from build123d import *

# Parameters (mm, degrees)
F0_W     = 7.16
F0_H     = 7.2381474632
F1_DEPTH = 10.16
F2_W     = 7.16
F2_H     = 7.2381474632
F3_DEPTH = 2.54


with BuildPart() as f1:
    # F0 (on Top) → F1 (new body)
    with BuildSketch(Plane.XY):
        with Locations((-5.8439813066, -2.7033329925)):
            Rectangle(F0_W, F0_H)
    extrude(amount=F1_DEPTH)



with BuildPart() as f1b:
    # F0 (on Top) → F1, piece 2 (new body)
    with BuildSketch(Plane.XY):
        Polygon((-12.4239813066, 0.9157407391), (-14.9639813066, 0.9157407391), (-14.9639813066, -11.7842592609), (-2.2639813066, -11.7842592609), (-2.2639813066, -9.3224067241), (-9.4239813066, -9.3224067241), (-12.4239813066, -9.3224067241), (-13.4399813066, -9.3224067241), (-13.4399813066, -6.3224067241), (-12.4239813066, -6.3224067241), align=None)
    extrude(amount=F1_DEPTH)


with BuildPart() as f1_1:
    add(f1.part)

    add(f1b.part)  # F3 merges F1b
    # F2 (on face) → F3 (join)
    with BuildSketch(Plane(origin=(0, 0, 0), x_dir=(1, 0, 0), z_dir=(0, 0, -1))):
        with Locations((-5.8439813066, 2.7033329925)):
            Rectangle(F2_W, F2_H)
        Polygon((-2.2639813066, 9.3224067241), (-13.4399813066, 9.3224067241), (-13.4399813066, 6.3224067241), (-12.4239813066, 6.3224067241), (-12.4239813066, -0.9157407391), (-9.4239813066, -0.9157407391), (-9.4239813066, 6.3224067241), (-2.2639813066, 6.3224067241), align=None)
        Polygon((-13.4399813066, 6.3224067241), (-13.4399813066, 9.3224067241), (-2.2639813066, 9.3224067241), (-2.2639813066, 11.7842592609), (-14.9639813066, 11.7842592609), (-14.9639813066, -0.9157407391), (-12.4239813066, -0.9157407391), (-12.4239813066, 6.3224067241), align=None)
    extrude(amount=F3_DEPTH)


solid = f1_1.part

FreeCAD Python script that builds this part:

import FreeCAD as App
import Part
import Sketcher
Q = App.Units.Quantity

doc = App.newDocument("Part")
body = doc.addObject("PartDesign::Body", "Body")

sketch1 = body.newObject("Sketcher::SketchObject", "Sketch")
sketch1.AttachmentSupport = (doc.getObject("XY_Plane"), [""])
sketch1.MapMode = "FlatFace"
sketch1.addGeometry(Part.LineSegment(App.Vector(-9, 1, 0), App.Vector(-9, -6, 0)), False)
sketch1.addGeometry(Part.LineSegment(App.Vector(-9, -6, 0), App.Vector(-2, -6, 0)), False)
sketch1.addGeometry(Part.LineSegment(App.Vector(-2, -6, 0), App.Vector(-2, 1, 0)), False)
sketch1.addGeometry(Part.LineSegment(App.Vector(-2, 1, 0), App.Vector(-9, 1, 0)), False)
sketch1.addConstraint(Sketcher.Constraint("Coincident", 0, 2, 1, 1))
sketch1.addConstraint(Sketcher.Constraint("Coincident", 1, 2, 2, 1))
sketch1.addConstraint(Sketcher.Constraint("Coincident", 2, 2, 3, 1))
sketch1.addConstraint(Sketcher.Constraint("Coincident", 3, 2, 0, 1))
sketch1.addConstraint(Sketcher.Constraint("Vertical", 0))
sketch1.addConstraint(Sketcher.Constraint("Horizontal", 1))
sketch1.addConstraint(Sketcher.Constraint("Vertical", 2))
sketch1.addConstraint(Sketcher.Constraint("Horizontal", 3))
sketch1.addConstraint(Sketcher.Constraint("DistanceX", 1, 1, 1, 2, Q("7.16 mm")))
sketch1.addConstraint(Sketcher.Constraint("DistanceY", 0, 2, 0, 1, Q("7.238147 mm")))
sketch1.addConstraint(Sketcher.Constraint("DistanceX", 0, 2, -1, 1, Q("9.423981 mm")))
sketch1.addConstraint(Sketcher.Constraint("DistanceY", -1, 1, 2, 2, Q("0.915741 mm")))
pad1 = body.newObject("PartDesign::Pad", "Pad")
pad1.Profile = sketch1
pad1.Length = Q("0.4 in")
body2 = doc.addObject("PartDesign::Body", "Body001")

sketch2 = body2.newObject("Sketcher::SketchObject", "Sketch001")
sketch2.AttachmentSupport = (doc.getObject("XY_Plane001"), [""])
sketch2.MapMode = "FlatFace"
sketch2.addGeometry(Part.LineSegment(App.Vector(-12.4, 0.9, 0), App.Vector(-15, 0.9, 0)), False)
sketch2.addGeometry(Part.LineSegment(App.Vector(-15, 0.9, 0), App.Vector(-15, -11.8, 0)), False)
sketch2.addGeometry(Part.LineSegment(App.Vector(-15, -11.8, 0), App.Vector(-2.3, -11.8, 0)), False)
sketch2.addGeometry(Part.LineSegment(App.Vector(-2.3, -11.8, 0), App.Vector(-2.3, -9.3, 0)), False)
sketch2.addGeometry(Part.LineSegment(App.Vector(-2.3, -9.3, 0), App.Vector(-13.4, -9.3, 0)), False)
sketch2.addGeometry(Part.LineSegment(App.Vector(-13.4, -9.3, 0), App.Vector(-13.4, -6.3, 0)), False)
sketch2.addGeometry(Part.LineSegment(App.Vector(-13.4, -6.3, 0), App.Vector(-12.4, -6.3, 0)), False)
sketch2.addGeometry(Part.LineSegment(App.Vector(-12.4, -6.3, 0), App.Vector(-12.4, 0.9, 0)), False)
sketch2.addConstraint(Sketcher.Constraint("Coincident", 0, 2, 1, 1))
sketch2.addConstraint(Sketcher.Constraint("Coincident", 1, 2, 2, 1))
sketch2.addConstraint(Sketcher.Constraint("Coincident", 2, 2, 3, 1))
sketch2.addConstraint(Sketcher.Constraint("Coincident", 3, 2, 4, 1))
sketch2.addConstraint(Sketcher.Constraint("Coincident", 4, 2, 5, 1))
sketch2.addConstraint(Sketcher.Constraint("Coincident", 5, 2, 6, 1))
sketch2.addConstraint(Sketcher.Constraint("Coincident", 6, 2, 7, 1))
sketch2.addConstraint(Sketcher.Constraint("Coincident", 7, 2, 0, 1))
sketch2.addConstraint(Sketcher.Constraint("Horizontal", 0))
sketch2.addConstraint(Sketcher.Constraint("Vertical", 1))
sketch2.addConstraint(Sketcher.Constraint("Horizontal", 2))
sketch2.addConstraint(Sketcher.Constraint("Vertical", 3))
sketch2.addConstraint(Sketcher.Constraint("Horizontal", 4))
sketch2.addConstraint(Sketcher.Constraint("Vertical", 5))
sketch2.addConstraint(Sketcher.Constraint("Horizontal", 6))
sketch2.addConstraint(Sketcher.Constraint("Vertical", 7))
sketch2.addConstraint(Sketcher.Constraint("Equal", 2, 1))
sketch2.addConstraint(Sketcher.Constraint("DistanceX", 0, 2, 0, 1, Q("0.1 in")))
sketch2.addConstraint(Sketcher.Constraint("DistanceX", 2, 1, 2, 2, Q("0.5 in")))
sketch2.addConstraint(Sketcher.Constraint("DistanceX", 4, 2, 4, 1, Q("0.44 in")))
sketch2.addConstraint(Sketcher.Constraint("DistanceY", 5, 1, 5, 2, Q("3 mm")))
sketch2.addConstraint(Sketcher.Constraint("DistanceY", 3, 1, 3, 2, Q("2.461853 mm")))
sketch2.addConstraint(Sketcher.Constraint("DistanceX", 0, 2, -1, 1, Q("14.963981 mm")))
sketch2.addConstraint(Sketcher.Constraint("DistanceY", -1, 1, 0, 2, Q("0.915741 mm")))
pad2 = body2.newObject("PartDesign::Pad", "Pad001")
pad2.Profile = sketch2
pad2.Length = Q("0.4 in")
body.AllowCompound = True
doc.recompute()

boolean = body.newObject("PartDesign::Boolean", "Boolean")
boolean.Type = "Fuse"
boolean.addObjects([body2])

sketch3 = body.newObject("Sketcher::SketchObject", "Sketch002")
sketch3.AttachmentSupport = (doc.getObject("XY_Plane"), [""])
sketch3.MapMode = "FlatFace"
sketch3.addGeometry(Part.LineSegment(App.Vector(-2, 1, 0), App.Vector(-2, -12, 0)), False)
sketch3.addGeometry(Part.LineSegment(App.Vector(-2, -12, 0), App.Vector(-15, -12, 0)), False)
sketch3.addGeometry(Part.LineSegment(App.Vector(-15, -12, 0), App.Vector(-15, 1, 0)), False)
sketch3.addGeometry(Part.LineSegment(App.Vector(-15, 1, 0), App.Vector(-2, 1, 0)), False)
sketch3.addConstraint(Sketcher.Constraint("Coincident", 0, 2, 1, 1))
sketch3.addConstraint(Sketcher.Constraint("Coincident", 1, 2, 2, 1))
sketch3.addConstraint(Sketcher.Constraint("Coincident", 2, 2, 3, 1))
sketch3.addConstraint(Sketcher.Constraint("Coincident", 3, 2, 0, 1))
sketch3.addConstraint(Sketcher.Constraint("Vertical", 0))
sketch3.addConstraint(Sketcher.Constraint("Horizontal", 1))
sketch3.addConstraint(Sketcher.Constraint("Vertical", 2))
sketch3.addConstraint(Sketcher.Constraint("Horizontal", 3))
sketch3.addConstraint(Sketcher.Constraint("Equal", 3, 0))
sketch3.addConstraint(Sketcher.Constraint("DistanceX", 1, 2, 1, 1, Q("0.5 in")))
sketch3.addConstraint(Sketcher.Constraint("DistanceX", 0, 2, -1, 1, Q("2.263981 mm")))
sketch3.addConstraint(Sketcher.Constraint("DistanceY", 0, 2, -1, 1, Q("11.784259 mm")))
pad3 = body.newObject("PartDesign::Pad", "Pad002")
pad3.Profile = sketch3
pad3.Length = Q("0.1 in")
pad3.Reversed = True

doc.recompute()
